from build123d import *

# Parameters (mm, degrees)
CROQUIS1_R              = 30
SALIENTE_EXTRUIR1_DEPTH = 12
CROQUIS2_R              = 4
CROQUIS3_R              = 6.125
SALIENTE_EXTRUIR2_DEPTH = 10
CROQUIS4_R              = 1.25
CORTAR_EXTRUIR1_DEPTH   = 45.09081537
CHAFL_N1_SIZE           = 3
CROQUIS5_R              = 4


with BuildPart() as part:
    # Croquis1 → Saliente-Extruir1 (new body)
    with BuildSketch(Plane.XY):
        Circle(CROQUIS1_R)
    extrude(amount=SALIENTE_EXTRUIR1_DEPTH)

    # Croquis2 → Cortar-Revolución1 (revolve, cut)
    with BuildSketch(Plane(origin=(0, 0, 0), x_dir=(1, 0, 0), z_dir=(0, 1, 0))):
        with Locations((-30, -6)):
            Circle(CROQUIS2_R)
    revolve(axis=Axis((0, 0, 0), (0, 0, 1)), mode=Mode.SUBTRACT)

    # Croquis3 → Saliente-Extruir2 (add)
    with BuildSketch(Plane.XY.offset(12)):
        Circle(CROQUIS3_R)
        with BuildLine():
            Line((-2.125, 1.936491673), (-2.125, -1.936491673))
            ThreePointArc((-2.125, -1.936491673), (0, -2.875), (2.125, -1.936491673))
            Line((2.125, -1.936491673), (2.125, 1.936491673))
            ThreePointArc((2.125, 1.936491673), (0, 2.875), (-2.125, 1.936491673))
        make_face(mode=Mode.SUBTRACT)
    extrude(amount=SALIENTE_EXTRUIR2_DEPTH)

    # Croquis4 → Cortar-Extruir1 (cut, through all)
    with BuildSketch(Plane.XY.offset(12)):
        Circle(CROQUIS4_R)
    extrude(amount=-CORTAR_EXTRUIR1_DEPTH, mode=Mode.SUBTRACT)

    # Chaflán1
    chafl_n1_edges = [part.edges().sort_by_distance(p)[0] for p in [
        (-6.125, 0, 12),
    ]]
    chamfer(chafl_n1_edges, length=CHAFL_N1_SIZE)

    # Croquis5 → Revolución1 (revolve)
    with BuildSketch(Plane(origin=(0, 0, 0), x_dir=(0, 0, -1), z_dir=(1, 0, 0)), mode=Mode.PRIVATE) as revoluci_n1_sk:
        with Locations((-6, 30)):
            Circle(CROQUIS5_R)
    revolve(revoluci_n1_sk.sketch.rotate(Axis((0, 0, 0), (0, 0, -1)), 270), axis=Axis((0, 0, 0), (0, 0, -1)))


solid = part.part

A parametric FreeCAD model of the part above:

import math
import FreeCAD as App
import Part
import Sketcher

V = App.Vector
Q = App.Units.Quantity


def edges_at(feature, points):
    """Names of the edges that pass closest to the given points."""
    edges = feature.Shape.Edges
    near = lambda p: min(range(len(edges)), key=lambda i: edges[i].distToShape(Part.Vertex(*p))[0])
    return sorted({f"Edge{near(p) + 1}" for p in points})

doc = App.newDocument("Part")
body = doc.addObject("PartDesign::Body", "Body")

# Sketch on XY plane
sketch1 = doc.addObject("Sketcher::SketchObject", "Sketch")
body.addObject(sketch1)
sketch1.AttachmentSupport = (doc.XY_Plane, [""])
sketch1.MapMode = "FlatFace"
sketch1.addGeometry(Part.Circle(V(0, 0, 0), V(0, 0, 1), 30), False)
sketch1.addConstraint(Sketcher.Constraint("Coincident", 0, 3, -1, 1))
sketch1.addConstraint(Sketcher.Constraint("Diameter", 0, Q("60 mm")))
pad1 = doc.addObject("PartDesign::Pad", "Pad")
body.addObject(pad1)
pad1.Profile = sketch1
pad1.Length = 12

# Sketch on XZ plane
sketch2 = doc.addObject("Sketcher::SketchObject", "Sketch001")
body.addObject(sketch2)
sketch2.AttachmentSupport = (doc.XZ_Plane, [""])
sketch2.MapMode = "FlatFace"
sketch2.addGeometry(Part.Circle(V(-30, 6, 0), V(0, 0, 1), 4), False)
sketch2.addConstraint(Sketcher.Constraint("Diameter", 0, Q("8 mm")))
sketch2.addConstraint(Sketcher.Constraint("DistanceX", 0, 3, -1, 1, Q("30 mm")))
sketch2.addConstraint(Sketcher.Constraint("DistanceY", -1, 1, 0, 3, Q("6 mm")))
groove = doc.addObject("PartDesign::Groove", "Groove")
body.addObject(groove)
groove.Profile = sketch2
groove.ReferenceAxis = (sketch2, ["V_Axis"])
groove.Angle = 360

# Sketch on XY plane
sketch3 = doc.addObject("Sketcher::SketchObject", "Sketch002")
body.addObject(sketch3)
sketch3.AttachmentSupport = (doc.XY_Plane, [""])
sketch3.MapMode = "FlatFace"
sketch3.AttachmentOffset = App.Placement(V(0, 0, 12), App.Rotation())
sketch3.addGeometry(Part.Circle(V(0, 0, 0), V(0, 0, 1), 6.1), False)
sketch3.addGeometry(Part.LineSegment(V(-2.1, -1.9, 0), V(-2.1, 1.9, 0)), False)
sketch3.addGeometry(Part.ArcOfCircle(Part.Circle(V(0, 0, 0), V(0, 0, 1), 2.9), math.radians(42), math.radians(138)), False)
sketch3.addGeometry(Part.LineSegment(V(2.1, 1.9, 0), V(2.1, -1.9, 0)), False)
sketch3.addGeometry(Part.ArcOfCircle(Part.Circle(V(0, 0, 0), V(0, 0, 1), 2.9), math.radians(-138), math.radians(-42)), False)
sketch3.addConstraint(Sketcher.Constraint("Coincident", 1, 2, 2, 2))
sketch3.addConstraint(Sketcher.Constraint("Coincident", 2, 1, 3, 1))
sketch3.addConstraint(Sketcher.Constraint("Coincident", 3, 2, 4, 2))
sketch3.addConstraint(Sketcher.Constraint("Coincident", 4, 1, 1, 1))
sketch3.addConstraint(Sketcher.Constraint("Vertical", 1))
sketch3.addConstraint(Sketcher.Constraint("Vertical", 3))
sketch3.addConstraint(Sketcher.Constraint("Coincident", 0, 3, -1, 1))
sketch3.addConstraint(Sketcher.Constraint("Coincident", 2, 3, -1, 1))
sketch3.addConstraint(Sketcher.Constraint("Coincident", 4, 3, -1, 1))
sketch3.addConstraint(Sketcher.Constraint("Equal", 2, 4))
sketch3.addConstraint(Sketcher.Constraint("Horizontal", 1, 2, 2, 1))
sketch3.addConstraint(Sketcher.Constraint("Diameter", 0, Q("12.25 mm")))
sketch3.addConstraint(Sketcher.Constraint("Radius", 2, Q("2.875 mm")))
sketch3.addConstraint(Sketcher.Constraint("DistanceX", 1, 2, 2, 1, Q("4.25 mm")))
pad2 = doc.addObject("PartDesign::Pad", "Pad001")
body.addObject(pad2)
pad2.Profile = sketch3
pad2.Length = 10

# Sketch on XY plane
sketch4 = doc.addObject("Sketcher::SketchObject", "Sketch003")
body.addObject(sketch4)
sketch4.AttachmentSupport = (doc.XY_Plane, [""])
sketch4.MapMode = "FlatFace"
sketch4.AttachmentOffset = App.Placement(V(0, 0, 12), App.Rotation())
sketch4.addGeometry(Part.Circle(V(0, 0, 0), V(0, 0, 1), 1.2), False)
sketch4.addConstraint(Sketcher.Constraint("Coincident", 0, 3, -1, 1))
sketch4.addConstraint(Sketcher.Constraint("Diameter", 0, Q("2.5 mm")))
pocket1 = doc.addObject("PartDesign::Pocket", "Pocket")
body.addObject(pocket1)
pocket1.Profile = sketch4
pocket1.Type = "ThroughAll"
doc.recompute()

chamfer = doc.addObject("PartDesign::Chamfer", "Chamfer")
body.addObject(chamfer)
chamfer.Base = (pocket1, edges_at(pocket1, [(-6.125, 0, 12)]))
chamfer.Size = 3

# Sketch on YZ plane
sketch5 = doc.addObject("Sketcher::SketchObject", "Sketch004")
body.addObject(sketch5)
sketch5.AttachmentSupport = (doc.YZ_Plane, [""])
sketch5.MapMode = "FlatFace"
sketch5.addGeometry(Part.Circle(V(30, 6, 0), V(0, 0, 1), 4), False)
sketch5.addConstraint(Sketcher.Constraint("Diameter", 0, Q("8 mm")))
sketch5.addConstraint(Sketcher.Constraint("DistanceX", -1, 1, 0, 3, Q("30 mm")))
sketch5.addConstraint(Sketcher.Constraint("DistanceY", -1, 1, 0, 3, Q("6 mm")))
revolution = doc.addObject("PartDesign::Revolution", "Revolution")
body.addObject(revolution)
revolution.Profile = sketch5
revolution.ReferenceAxis = (sketch5, ["V_Axis"])
revolution.Angle = 360

doc.recompute()
